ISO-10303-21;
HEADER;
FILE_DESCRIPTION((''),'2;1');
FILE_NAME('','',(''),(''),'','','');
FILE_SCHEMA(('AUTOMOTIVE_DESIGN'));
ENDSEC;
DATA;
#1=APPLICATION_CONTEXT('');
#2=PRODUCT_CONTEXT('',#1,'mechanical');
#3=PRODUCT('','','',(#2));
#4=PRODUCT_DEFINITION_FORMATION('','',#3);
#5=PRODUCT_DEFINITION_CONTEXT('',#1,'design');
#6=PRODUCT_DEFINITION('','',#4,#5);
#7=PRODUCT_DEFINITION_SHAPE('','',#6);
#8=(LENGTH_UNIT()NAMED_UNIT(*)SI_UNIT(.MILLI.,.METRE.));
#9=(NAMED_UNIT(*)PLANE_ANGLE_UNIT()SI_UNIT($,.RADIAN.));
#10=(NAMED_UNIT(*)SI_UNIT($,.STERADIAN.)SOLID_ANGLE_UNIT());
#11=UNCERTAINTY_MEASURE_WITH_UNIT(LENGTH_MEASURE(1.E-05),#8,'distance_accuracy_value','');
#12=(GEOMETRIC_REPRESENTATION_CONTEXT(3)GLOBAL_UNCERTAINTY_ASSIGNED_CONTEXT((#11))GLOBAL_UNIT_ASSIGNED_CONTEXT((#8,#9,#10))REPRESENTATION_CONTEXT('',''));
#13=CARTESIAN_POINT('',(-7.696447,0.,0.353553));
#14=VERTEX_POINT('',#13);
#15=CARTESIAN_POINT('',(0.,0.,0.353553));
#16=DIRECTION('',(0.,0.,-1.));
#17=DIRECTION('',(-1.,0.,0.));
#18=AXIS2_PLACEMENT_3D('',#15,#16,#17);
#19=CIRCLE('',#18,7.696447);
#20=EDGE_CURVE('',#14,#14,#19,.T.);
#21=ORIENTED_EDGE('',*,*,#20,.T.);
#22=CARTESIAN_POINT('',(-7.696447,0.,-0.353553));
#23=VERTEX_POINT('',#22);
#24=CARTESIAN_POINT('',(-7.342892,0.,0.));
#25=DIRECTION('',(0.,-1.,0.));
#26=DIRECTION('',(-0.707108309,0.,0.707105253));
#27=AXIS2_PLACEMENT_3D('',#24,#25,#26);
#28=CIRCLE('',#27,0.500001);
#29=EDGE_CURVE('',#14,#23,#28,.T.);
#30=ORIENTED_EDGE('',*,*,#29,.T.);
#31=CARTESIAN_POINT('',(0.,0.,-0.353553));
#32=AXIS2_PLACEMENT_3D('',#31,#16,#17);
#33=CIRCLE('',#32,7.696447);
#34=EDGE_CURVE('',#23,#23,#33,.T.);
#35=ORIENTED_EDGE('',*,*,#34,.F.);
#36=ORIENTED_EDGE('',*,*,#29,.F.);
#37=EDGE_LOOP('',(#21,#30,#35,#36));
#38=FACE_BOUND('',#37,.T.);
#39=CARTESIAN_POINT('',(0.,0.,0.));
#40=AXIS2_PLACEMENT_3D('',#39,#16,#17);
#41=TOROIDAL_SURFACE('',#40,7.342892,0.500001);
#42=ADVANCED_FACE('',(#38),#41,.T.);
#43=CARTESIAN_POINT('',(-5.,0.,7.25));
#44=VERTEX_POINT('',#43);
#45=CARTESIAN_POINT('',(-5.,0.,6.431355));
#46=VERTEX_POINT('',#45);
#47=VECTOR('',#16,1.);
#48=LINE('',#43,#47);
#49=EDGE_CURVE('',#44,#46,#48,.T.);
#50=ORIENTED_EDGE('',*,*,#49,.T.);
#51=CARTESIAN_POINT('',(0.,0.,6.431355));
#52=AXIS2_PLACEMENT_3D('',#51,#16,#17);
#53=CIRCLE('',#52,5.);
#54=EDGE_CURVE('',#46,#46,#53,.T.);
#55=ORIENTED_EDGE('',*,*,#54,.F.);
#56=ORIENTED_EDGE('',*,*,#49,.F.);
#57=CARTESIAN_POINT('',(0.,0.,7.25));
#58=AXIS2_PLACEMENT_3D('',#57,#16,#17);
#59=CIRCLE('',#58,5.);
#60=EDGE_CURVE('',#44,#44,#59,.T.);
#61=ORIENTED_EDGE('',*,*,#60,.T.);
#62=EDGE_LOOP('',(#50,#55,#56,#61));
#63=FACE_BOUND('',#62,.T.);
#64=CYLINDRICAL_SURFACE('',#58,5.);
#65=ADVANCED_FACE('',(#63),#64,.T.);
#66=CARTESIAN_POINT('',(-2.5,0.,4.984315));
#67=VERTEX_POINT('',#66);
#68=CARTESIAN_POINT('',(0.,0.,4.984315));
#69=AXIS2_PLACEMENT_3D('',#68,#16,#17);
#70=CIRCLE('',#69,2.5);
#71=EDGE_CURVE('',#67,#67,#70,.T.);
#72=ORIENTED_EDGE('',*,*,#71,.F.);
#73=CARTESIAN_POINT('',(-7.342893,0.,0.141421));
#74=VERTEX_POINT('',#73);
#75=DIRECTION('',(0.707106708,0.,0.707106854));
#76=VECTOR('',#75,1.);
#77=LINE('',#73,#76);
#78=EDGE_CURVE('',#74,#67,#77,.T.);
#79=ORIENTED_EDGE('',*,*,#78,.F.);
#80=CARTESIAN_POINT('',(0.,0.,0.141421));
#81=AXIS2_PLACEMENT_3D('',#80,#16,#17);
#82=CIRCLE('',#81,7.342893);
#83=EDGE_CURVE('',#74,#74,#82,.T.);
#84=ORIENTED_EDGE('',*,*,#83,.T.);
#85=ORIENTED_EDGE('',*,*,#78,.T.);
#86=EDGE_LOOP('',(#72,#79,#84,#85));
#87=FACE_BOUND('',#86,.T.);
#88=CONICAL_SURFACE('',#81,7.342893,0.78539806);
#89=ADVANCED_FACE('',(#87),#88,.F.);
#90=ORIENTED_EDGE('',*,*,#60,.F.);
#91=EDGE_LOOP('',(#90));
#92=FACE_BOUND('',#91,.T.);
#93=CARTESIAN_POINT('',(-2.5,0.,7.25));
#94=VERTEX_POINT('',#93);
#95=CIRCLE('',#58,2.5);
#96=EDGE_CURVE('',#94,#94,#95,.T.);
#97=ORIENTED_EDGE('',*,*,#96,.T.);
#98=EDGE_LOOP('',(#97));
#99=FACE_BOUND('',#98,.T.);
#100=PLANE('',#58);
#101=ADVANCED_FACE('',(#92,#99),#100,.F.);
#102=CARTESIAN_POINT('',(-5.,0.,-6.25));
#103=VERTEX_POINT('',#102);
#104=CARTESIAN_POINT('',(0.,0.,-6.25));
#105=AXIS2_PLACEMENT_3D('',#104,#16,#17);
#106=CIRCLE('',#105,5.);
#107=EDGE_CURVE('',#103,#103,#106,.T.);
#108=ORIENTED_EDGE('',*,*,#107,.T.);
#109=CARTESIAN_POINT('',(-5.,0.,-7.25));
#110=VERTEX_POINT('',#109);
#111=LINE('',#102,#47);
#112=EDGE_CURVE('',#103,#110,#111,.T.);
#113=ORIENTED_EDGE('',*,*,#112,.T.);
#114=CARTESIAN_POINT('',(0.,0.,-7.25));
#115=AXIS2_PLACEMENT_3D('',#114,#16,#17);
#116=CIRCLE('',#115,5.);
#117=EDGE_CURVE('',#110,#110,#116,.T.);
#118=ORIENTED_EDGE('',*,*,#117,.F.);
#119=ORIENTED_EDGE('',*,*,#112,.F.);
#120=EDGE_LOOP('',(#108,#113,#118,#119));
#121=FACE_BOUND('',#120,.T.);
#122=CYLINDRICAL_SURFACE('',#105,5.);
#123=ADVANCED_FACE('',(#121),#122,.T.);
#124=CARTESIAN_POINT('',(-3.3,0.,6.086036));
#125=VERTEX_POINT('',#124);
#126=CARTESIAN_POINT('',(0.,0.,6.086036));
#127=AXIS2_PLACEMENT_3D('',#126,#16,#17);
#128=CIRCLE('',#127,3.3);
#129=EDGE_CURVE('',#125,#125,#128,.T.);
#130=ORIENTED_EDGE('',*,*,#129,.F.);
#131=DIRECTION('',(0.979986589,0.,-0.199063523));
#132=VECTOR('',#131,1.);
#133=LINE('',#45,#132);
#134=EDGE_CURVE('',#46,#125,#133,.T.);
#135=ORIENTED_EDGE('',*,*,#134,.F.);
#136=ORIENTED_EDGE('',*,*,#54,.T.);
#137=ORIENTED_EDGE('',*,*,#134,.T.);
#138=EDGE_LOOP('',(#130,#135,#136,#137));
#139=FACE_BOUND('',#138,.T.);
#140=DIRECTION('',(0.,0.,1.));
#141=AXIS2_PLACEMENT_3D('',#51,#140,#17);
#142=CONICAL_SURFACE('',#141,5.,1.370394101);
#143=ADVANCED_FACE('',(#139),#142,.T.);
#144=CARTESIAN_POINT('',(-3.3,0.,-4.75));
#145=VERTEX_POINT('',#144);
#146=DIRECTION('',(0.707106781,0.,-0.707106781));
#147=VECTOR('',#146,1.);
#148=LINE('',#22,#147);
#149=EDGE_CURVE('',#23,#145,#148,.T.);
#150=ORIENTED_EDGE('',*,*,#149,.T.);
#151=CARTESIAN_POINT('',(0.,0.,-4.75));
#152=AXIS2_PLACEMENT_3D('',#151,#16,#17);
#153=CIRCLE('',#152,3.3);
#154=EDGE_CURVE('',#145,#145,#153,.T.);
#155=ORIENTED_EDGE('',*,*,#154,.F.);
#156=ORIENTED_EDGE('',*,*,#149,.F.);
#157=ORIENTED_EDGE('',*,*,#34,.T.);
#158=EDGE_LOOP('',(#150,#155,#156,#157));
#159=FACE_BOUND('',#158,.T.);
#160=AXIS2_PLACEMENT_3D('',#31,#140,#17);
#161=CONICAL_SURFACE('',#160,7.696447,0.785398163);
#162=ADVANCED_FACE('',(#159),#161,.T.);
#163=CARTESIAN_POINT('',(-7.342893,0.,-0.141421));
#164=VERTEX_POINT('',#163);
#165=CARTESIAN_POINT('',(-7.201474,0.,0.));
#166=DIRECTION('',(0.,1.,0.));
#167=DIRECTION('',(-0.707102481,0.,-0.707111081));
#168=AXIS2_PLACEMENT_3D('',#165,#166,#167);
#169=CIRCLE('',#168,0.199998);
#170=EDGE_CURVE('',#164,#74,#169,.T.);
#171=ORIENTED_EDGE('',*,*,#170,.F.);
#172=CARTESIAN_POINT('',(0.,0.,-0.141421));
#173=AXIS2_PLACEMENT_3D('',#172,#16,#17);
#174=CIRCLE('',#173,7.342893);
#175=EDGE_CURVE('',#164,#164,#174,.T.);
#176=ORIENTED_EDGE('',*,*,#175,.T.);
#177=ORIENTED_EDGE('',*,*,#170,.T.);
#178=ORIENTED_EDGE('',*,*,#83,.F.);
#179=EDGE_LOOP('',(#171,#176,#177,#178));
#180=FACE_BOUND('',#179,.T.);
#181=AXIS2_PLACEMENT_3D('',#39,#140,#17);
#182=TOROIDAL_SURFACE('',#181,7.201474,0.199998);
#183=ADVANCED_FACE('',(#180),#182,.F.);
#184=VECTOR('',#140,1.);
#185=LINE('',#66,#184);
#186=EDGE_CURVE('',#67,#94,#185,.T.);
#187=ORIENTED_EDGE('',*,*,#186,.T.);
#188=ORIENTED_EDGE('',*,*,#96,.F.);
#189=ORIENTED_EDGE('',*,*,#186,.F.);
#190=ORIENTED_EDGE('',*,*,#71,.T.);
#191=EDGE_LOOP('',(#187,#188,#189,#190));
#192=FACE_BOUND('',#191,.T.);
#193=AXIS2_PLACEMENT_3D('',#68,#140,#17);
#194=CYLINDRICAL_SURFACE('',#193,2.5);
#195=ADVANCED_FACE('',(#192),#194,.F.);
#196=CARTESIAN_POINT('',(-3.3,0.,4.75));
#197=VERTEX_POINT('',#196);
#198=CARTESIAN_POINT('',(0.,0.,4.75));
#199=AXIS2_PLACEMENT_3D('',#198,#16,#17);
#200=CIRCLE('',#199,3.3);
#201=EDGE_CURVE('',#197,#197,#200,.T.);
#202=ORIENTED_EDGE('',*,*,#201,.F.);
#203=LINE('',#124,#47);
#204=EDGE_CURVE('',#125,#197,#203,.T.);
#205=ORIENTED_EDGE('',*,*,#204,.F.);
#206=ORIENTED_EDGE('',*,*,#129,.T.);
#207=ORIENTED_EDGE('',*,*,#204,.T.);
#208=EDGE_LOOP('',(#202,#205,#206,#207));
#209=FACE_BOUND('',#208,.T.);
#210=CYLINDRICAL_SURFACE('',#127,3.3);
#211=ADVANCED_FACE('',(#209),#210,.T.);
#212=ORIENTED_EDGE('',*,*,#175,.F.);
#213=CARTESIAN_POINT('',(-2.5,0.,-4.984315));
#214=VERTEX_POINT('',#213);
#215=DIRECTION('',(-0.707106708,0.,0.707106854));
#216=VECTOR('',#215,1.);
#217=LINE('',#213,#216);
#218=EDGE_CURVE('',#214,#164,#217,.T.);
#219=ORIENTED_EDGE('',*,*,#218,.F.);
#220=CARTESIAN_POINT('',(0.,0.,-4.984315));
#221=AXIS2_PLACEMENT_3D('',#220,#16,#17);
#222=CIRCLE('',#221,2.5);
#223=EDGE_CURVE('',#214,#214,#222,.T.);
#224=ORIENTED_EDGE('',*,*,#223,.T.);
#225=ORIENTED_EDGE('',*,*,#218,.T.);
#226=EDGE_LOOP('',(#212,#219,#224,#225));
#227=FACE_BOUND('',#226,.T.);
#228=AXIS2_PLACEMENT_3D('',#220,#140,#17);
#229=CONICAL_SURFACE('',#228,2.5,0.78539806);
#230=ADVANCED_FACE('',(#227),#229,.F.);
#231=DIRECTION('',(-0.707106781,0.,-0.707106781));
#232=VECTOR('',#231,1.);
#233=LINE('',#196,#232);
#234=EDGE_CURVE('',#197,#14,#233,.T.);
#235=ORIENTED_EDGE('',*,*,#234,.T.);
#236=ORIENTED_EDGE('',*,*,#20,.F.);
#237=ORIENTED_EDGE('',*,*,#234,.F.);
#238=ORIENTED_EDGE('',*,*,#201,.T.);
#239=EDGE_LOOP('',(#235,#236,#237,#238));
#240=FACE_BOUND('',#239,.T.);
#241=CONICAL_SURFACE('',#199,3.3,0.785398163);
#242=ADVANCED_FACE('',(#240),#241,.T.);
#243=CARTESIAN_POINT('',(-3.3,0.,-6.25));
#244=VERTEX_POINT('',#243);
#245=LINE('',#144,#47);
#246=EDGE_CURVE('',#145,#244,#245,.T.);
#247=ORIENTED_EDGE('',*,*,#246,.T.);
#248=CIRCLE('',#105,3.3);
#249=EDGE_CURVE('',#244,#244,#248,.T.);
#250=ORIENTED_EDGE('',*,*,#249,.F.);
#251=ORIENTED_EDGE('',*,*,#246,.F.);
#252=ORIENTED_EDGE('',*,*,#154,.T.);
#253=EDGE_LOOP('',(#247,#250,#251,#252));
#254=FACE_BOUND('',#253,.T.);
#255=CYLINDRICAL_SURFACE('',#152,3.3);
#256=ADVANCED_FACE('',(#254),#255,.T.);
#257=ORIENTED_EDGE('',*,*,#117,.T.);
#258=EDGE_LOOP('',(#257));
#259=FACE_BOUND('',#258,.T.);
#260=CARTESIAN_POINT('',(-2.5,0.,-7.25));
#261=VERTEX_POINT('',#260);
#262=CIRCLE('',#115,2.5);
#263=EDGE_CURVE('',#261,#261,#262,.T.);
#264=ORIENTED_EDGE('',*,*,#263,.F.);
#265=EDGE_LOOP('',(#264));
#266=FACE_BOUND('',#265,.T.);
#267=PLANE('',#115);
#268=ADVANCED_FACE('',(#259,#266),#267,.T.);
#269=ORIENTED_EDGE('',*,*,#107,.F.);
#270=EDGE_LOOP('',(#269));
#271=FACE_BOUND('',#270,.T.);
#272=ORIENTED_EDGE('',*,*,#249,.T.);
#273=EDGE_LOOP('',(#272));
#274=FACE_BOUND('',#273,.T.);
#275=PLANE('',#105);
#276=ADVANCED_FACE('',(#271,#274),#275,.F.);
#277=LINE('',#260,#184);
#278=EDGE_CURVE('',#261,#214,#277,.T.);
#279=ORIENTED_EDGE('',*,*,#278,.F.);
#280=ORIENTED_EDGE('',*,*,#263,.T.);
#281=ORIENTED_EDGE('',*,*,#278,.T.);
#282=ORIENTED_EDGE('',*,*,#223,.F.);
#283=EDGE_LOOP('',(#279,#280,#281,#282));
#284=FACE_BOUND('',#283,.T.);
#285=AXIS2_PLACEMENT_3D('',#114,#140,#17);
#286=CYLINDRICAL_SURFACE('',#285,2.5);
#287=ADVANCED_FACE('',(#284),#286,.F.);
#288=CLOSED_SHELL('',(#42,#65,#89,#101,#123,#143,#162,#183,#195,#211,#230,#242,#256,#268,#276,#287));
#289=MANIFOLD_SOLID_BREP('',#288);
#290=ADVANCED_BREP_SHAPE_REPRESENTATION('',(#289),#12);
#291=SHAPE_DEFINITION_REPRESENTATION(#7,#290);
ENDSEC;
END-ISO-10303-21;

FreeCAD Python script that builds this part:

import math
import FreeCAD as App
import Part
import Sketcher
from FreeCAD import Vector
Q = App.Units.Quantity

doc = App.newDocument("Part")
body = doc.addObject("PartDesign::Body", "Body")

# Sketch on XZ plane
sketch1 = doc.addObject("Sketcher::SketchObject", "Sketch")
body.addObject(sketch1)
sketch1.AttachmentSupport = (doc.XZ_Plane, [""])
sketch1.MapMode = "FlatFace"
sketch1.addGeometry(Part.LineSegment(Vector(-2.5, 4.98, 0), Vector(-2.5, 7.25, 0)), False)
sketch1.addGeometry(Part.LineSegment(Vector(-2.5, 7.25, 0), Vector(-5, 7.25, 0)), False)
sketch1.addGeometry(Part.LineSegment(Vector(-5, 7.25, 0), Vector(-5, 6.43, 0)), False)
sketch1.addGeometry(Part.LineSegment(Vector(-5, 6.43, 0), Vector(-3.3, 6.09, 0)), False)
sketch1.addGeometry(Part.LineSegment(Vector(-3.3, 6.09, 0), Vector(-3.3, 4.75, 0)), False)
sketch1.addGeometry(Part.LineSegment(Vector(-3.3, 4.75, 0), Vector(-7.7, 0.35, 0)), False)
sketch1.addGeometry(Part.ArcOfCircle(Part.Circle(Vector(-7.34, 0, 0), Vector(0, 0, 1), 0.5), math.radians(135), math.radians(225)), False)
sketch1.addGeometry(Part.LineSegment(Vector(-7.7, -0.35, 0), Vector(-3.3, -4.75, 0)), False)
sketch1.addGeometry(Part.LineSegment(Vector(-3.3, -4.75, 0), Vector(-3.3, -6.25, 0)), False)
sketch1.addGeometry(Part.LineSegment(Vector(-3.3, -6.25, 0), Vector(-5, -6.25, 0)), False)
sketch1.addGeometry(Part.LineSegment(Vector(-5, -6.25, 0), Vector(-5, -7.25, 0)), False)
sketch1.addGeometry(Part.LineSegment(Vector(-5, -7.25, 0), Vector(-2.5, -7.25, 0)), False)
sketch1.addGeometry(Part.LineSegment(Vector(-2.5, -7.25, 0), Vector(-2.5, -4.98, 0)), False)
sketch1.addGeometry(Part.LineSegment(Vector(-2.5, -4.98, 0), Vector(-7.34, -0.14, 0)), False)
sketch1.addGeometry(Part.ArcOfCircle(Part.Circle(Vector(-7.2, 0, 0), Vector(0, 0, 1), 0.2), math.radians(135), math.radians(225)), False)
sketch1.addGeometry(Part.LineSegment(Vector(-7.34, 0.14, 0), Vector(-2.5, 4.98, 0)), False)
sketch1.addConstraint(Sketcher.Constraint("Coincident", 0, 2, 1, 1))
sketch1.addConstraint(Sketcher.Constraint("Coincident", 1, 2, 2, 1))
sketch1.addConstraint(Sketcher.Constraint("Coincident", 2, 2, 3, 1))
sketch1.addConstraint(Sketcher.Constraint("Coincident", 3, 2, 4, 1))
sketch1.addConstraint(Sketcher.Constraint("Coincident", 4, 2, 5, 1))
sketch1.addConstraint(Sketcher.Constraint("Coincident", 5, 2, 6, 1))
sketch1.addConstraint(Sketcher.Constraint("Coincident", 6, 2, 7, 1))
sketch1.addConstraint(Sketcher.Constraint("Coincident", 7, 2, 8, 1))
sketch1.addConstraint(Sketcher.Constraint("Coincident", 8, 2, 9, 1))
sketch1.addConstraint(Sketcher.Constraint("Coincident", 9, 2, 10, 1))
sketch1.addConstraint(Sketcher.Constraint("Coincident", 10, 2, 11, 1))
sketch1.addConstraint(Sketcher.Constraint("Coincident", 11, 2, 12, 1))
sketch1.addConstraint(Sketcher.Constraint("Coincident", 12, 2, 13, 1))
sketch1.addConstraint(Sketcher.Constraint("Coincident", 13, 2, 14, 2))
sketch1.addConstraint(Sketcher.Constraint("Coincident", 14, 1, 15, 1))
sketch1.addConstraint(Sketcher.Constraint("Coincident", 15, 2, 0, 1))
sketch1.addConstraint(Sketcher.Constraint("Vertical", 0))
sketch1.addConstraint(Sketcher.Constraint("Horizontal", 1))
sketch1.addConstraint(Sketcher.Constraint("Vertical", 2))
sketch1.addConstraint(Sketcher.Constraint("Vertical", 4))
sketch1.addConstraint(Sketcher.Constraint("Vertical", 8))
sketch1.addConstraint(Sketcher.Constraint("Horizontal", 9))
sketch1.addConstraint(Sketcher.Constraint("Vertical", 10))
sketch1.addConstraint(Sketcher.Constraint("Horizontal", 11))
sketch1.addConstraint(Sketcher.Constraint("Vertical", 12))
sketch1.addConstraint(Sketcher.Constraint("Symmetric", 5, 2, 6, 2, -1))
sketch1.addConstraint(Sketcher.Constraint("Symmetric", 4, 2, 7, 2, -1))
sketch1.addConstraint(Sketcher.Constraint("Symmetric", 1, 2, 10, 2, -1))
sketch1.addConstraint(Sketcher.Constraint("Symmetric", 13, 2, 14, 1, -1))
sketch1.addConstraint(Sketcher.Constraint("Symmetric", 12, 2, 15, 2, -1))
sketch1.addConstraint(Sketcher.Constraint("Perpendicular", 5, 7))
sketch1.addConstraint(Sketcher.Constraint("Parallel", 7, 13))
sketch1.addConstraint(Sketcher.Constraint("Vertical", 6, 3, 13, 2))
sketch1.addConstraint(Sketcher.Constraint("Radius", 6, Q("0.500001 mm")))
sketch1.addConstraint(Sketcher.Constraint("Radius", 14, Q("0.199998 mm")))
sketch1.addConstraint(Sketcher.Constraint("DistanceY", 10, 2, 10, 1, Q("1 mm")))
sketch1.addConstraint(Sketcher.Constraint("DistanceX", 1, 2, 1, 1, Q("2.5 mm")))
sketch1.addConstraint(Sketcher.Constraint("DistanceX", 9, 2, 9, 1, Q("1.7 mm")))
sketch1.addConstraint(Sketcher.Constraint("DistanceY", 8, 2, 8, 1, Q("1.5 mm")))
sketch1.addConstraint(Sketcher.Constraint("DistanceX", 1, 2, -1, 1, Q("5 mm")))
sketch1.addConstraint(Sketcher.Constraint("DistanceY", 7, 2, 4, 2, Q("9.5 mm")))
sketch1.addConstraint(Sketcher.Constraint("DistanceY", 0, 1, 0, 2, Q("2.265685 mm")))
sketch1.addConstraint(Sketcher.Constraint("DistanceY", 2, 2, 2, 1, Q("0.818645 mm")))
sketch1.addConstraint(Sketcher.Constraint("DistanceY", 4, 2, 4, 1, Q("1.336036 mm")))
sketch1.addConstraint(Sketcher.Constraint("DistanceY", 6, 2, 13, 2, Q("0.212132 mm")))
revolution = doc.addObject("PartDesign::Revolution", "Revolution")
body.addObject(revolution)
revolution.Profile = sketch1
revolution.ReferenceAxis = (sketch1, ["V_Axis"])
revolution.Angle = 360

doc.recompute()
